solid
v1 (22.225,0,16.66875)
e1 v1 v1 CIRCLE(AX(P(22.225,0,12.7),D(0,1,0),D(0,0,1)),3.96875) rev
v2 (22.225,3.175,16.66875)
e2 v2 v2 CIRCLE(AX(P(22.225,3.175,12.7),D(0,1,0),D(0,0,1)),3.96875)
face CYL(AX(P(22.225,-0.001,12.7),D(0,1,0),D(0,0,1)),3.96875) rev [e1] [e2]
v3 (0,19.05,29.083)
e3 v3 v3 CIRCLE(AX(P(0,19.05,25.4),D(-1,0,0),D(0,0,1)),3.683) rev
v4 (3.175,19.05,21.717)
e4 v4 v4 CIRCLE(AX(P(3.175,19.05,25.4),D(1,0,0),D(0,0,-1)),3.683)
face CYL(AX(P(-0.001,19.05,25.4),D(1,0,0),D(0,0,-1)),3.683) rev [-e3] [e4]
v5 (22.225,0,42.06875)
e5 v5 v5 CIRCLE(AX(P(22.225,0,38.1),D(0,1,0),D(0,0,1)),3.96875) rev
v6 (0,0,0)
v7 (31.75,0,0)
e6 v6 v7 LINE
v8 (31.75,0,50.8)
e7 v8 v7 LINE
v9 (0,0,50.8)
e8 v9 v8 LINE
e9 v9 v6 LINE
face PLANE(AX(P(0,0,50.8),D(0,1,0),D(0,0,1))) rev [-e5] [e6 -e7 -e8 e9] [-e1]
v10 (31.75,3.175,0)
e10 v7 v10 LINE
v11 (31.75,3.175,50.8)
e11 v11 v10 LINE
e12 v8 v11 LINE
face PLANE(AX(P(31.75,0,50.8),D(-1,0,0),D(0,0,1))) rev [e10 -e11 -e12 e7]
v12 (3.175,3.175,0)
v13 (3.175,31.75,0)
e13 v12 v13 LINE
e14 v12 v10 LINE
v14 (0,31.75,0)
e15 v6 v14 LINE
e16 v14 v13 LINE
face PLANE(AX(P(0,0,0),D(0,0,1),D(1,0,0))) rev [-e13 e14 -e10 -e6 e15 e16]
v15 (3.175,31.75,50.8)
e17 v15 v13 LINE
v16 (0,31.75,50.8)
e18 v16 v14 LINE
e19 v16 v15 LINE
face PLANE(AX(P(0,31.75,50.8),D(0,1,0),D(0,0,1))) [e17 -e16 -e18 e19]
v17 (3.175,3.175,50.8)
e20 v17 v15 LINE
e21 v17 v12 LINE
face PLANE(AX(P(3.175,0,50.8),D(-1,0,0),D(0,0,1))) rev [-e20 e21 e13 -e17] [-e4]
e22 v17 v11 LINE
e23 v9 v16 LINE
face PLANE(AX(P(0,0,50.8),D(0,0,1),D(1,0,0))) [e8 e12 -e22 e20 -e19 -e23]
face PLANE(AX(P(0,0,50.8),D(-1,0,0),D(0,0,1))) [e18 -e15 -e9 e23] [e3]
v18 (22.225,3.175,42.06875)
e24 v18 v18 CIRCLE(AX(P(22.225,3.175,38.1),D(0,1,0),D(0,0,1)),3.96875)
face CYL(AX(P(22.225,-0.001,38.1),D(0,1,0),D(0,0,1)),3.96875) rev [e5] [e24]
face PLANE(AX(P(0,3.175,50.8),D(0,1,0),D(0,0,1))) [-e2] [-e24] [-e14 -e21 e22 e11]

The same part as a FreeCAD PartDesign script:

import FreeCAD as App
import Part
import Sketcher
from FreeCAD import Vector
Q = App.Units.Quantity

doc = App.newDocument("Part")
body = doc.addObject("PartDesign::Body", "Body")

# Sketch on XY plane
sketch1 = body.newObject("Sketcher::SketchObject", "Sketch")
sketch1.AttachmentSupport = (doc.getObject("XY_Plane"), [""])
sketch1.MapMode = "FlatFace"
sketch1.addGeometry([
    Part.LineSegment(Vector(0, 31.8, 0), Vector(0, 0, 0)),  # 0
    Part.LineSegment(Vector(0, 0, 0), Vector(31.8, 0, 0)),  # 1
    Part.LineSegment(Vector(31.8, 0, 0), Vector(31.8, 3.2, 0)),  # 2
    Part.LineSegment(Vector(31.8, 3.2, 0), Vector(3.2, 3.2, 0)),  # 3
    Part.LineSegment(Vector(3.2, 3.2, 0), Vector(3.2, 31.8, 0)),  # 4
    Part.LineSegment(Vector(3.2, 31.8, 0), Vector(0, 31.8, 0)),  # 5
], False)
sketch1.addConstraint([
    Sketcher.Constraint("Coincident", 0, 2, 1, 1),
    Sketcher.Constraint("Coincident", 1, 2, 2, 1),
    Sketcher.Constraint("Coincident", 2, 2, 3, 1),
    Sketcher.Constraint("Coincident", 3, 2, 4, 1),
    Sketcher.Constraint("Coincident", 4, 2, 5, 1),
    Sketcher.Constraint("Coincident", 5, 2, 0, 1),
    Sketcher.Constraint("Vertical", 0),
    Sketcher.Constraint("Horizontal", 1),
    Sketcher.Constraint("Vertical", 2),
    Sketcher.Constraint("Horizontal", 3),
    Sketcher.Constraint("Vertical", 4),
    Sketcher.Constraint("Horizontal", 5),
    Sketcher.Constraint("Coincident", 0, 2, -1, 1),
    Sketcher.Constraint("Equal", 1, 0),
    Sketcher.Constraint("Equal", 5, 2),
    Sketcher.Constraint("DistanceX", 1, 1, 1, 2, Q("1.25 in")),
    Sketcher.Constraint("DistanceX", 3, 2, 3, 1, Q("1.125 in")),
])
pad1 = body.newObject("PartDesign::Pad", "Pad")
pad1.Profile = sketch1
pad1.Length = Q("2 in")

# Sketch on YZ plane
sketch2 = body.newObject("Sketcher::SketchObject", "Sketch001")
sketch2.AttachmentSupport = (doc.getObject("YZ_Plane"), [""])
sketch2.MapMode = "FlatFace"
sketch2.AttachmentOffset = App.Placement(Vector(0, 0, 0.125 * 25.4), App.Rotation())
sketch2.addGeometry(Part.Circle(Vector(19.1, 25.4, 0), Vector(0, 0, 1), 3.7), False)
sketch2.addConstraint([
    Sketcher.Constraint("Diameter", 0, Q("0.29 in")),
    Sketcher.Constraint("DistanceY", -1, 1, 0, 3, Q("1 in")),
    Sketcher.Constraint("DistanceX", -1, 1, 0, 3, Q("0.75 in")),
])
pocket1 = body.newObject("PartDesign::Pocket", "Pocket")
pocket1.Profile = sketch2
pocket1.Type = "UpToFirst"

# Sketch on XZ plane
sketch3 = body.newObject("Sketcher::SketchObject", "Sketch002")
sketch3.AttachmentSupport = (doc.getObject("XZ_Plane"), [""])
sketch3.MapMode = "FlatFace"
sketch3.AttachmentOffset = App.Placement(Vector(0, 0, -0.125 * 25.4), App.Rotation())
sketch3.addGeometry(Part.Circle(Vector(22.2, 38.1, 0), Vector(0, 0, 1), 4), False)
sketch3.addConstraint([
    Sketcher.Constraint("Diameter", 0, Q("0.3125 in")),
    Sketcher.Constraint("DistanceY", -1, 1, 0, 3, Q("1.5 in")),
    Sketcher.Constraint("DistanceX", -1, 1, 0, 3, Q("0.875 in")),
])
pocket2 = body.newObject("PartDesign::Pocket", "Pocket001")
pocket2.Profile = sketch3
pocket2.Type = "UpToFirst"
pocket2.Reversed = True

# Sketch on XZ plane
sketch4 = body.newObject("Sketcher::SketchObject", "Sketch003")
sketch4.AttachmentSupport = (doc.getObject("XZ_Plane"), [""])
sketch4.MapMode = "FlatFace"
sketch4.AttachmentOffset = App.Placement(Vector(0, 0, -0.125 * 25.4), App.Rotation())
sketch4.addGeometry(Part.Circle(Vector(22.2, 12.7, 0), Vector(0, 0, 1), 4), False)
sketch4.addConstraint([
    Sketcher.Constraint("Diameter", 0, Q("0.3125 in")),
    Sketcher.Constraint("DistanceY", -1, 1, 0, 3, Q("0.5 in")),
    Sketcher.Constraint("DistanceX", -1, 1, 0, 3, Q("0.875 in")),
])
pocket3 = body.newObject("PartDesign::Pocket", "Pocket002")
pocket3.Profile = sketch4
pocket3.Type = "UpToFirst"
pocket3.Reversed = True

doc.recompute()
